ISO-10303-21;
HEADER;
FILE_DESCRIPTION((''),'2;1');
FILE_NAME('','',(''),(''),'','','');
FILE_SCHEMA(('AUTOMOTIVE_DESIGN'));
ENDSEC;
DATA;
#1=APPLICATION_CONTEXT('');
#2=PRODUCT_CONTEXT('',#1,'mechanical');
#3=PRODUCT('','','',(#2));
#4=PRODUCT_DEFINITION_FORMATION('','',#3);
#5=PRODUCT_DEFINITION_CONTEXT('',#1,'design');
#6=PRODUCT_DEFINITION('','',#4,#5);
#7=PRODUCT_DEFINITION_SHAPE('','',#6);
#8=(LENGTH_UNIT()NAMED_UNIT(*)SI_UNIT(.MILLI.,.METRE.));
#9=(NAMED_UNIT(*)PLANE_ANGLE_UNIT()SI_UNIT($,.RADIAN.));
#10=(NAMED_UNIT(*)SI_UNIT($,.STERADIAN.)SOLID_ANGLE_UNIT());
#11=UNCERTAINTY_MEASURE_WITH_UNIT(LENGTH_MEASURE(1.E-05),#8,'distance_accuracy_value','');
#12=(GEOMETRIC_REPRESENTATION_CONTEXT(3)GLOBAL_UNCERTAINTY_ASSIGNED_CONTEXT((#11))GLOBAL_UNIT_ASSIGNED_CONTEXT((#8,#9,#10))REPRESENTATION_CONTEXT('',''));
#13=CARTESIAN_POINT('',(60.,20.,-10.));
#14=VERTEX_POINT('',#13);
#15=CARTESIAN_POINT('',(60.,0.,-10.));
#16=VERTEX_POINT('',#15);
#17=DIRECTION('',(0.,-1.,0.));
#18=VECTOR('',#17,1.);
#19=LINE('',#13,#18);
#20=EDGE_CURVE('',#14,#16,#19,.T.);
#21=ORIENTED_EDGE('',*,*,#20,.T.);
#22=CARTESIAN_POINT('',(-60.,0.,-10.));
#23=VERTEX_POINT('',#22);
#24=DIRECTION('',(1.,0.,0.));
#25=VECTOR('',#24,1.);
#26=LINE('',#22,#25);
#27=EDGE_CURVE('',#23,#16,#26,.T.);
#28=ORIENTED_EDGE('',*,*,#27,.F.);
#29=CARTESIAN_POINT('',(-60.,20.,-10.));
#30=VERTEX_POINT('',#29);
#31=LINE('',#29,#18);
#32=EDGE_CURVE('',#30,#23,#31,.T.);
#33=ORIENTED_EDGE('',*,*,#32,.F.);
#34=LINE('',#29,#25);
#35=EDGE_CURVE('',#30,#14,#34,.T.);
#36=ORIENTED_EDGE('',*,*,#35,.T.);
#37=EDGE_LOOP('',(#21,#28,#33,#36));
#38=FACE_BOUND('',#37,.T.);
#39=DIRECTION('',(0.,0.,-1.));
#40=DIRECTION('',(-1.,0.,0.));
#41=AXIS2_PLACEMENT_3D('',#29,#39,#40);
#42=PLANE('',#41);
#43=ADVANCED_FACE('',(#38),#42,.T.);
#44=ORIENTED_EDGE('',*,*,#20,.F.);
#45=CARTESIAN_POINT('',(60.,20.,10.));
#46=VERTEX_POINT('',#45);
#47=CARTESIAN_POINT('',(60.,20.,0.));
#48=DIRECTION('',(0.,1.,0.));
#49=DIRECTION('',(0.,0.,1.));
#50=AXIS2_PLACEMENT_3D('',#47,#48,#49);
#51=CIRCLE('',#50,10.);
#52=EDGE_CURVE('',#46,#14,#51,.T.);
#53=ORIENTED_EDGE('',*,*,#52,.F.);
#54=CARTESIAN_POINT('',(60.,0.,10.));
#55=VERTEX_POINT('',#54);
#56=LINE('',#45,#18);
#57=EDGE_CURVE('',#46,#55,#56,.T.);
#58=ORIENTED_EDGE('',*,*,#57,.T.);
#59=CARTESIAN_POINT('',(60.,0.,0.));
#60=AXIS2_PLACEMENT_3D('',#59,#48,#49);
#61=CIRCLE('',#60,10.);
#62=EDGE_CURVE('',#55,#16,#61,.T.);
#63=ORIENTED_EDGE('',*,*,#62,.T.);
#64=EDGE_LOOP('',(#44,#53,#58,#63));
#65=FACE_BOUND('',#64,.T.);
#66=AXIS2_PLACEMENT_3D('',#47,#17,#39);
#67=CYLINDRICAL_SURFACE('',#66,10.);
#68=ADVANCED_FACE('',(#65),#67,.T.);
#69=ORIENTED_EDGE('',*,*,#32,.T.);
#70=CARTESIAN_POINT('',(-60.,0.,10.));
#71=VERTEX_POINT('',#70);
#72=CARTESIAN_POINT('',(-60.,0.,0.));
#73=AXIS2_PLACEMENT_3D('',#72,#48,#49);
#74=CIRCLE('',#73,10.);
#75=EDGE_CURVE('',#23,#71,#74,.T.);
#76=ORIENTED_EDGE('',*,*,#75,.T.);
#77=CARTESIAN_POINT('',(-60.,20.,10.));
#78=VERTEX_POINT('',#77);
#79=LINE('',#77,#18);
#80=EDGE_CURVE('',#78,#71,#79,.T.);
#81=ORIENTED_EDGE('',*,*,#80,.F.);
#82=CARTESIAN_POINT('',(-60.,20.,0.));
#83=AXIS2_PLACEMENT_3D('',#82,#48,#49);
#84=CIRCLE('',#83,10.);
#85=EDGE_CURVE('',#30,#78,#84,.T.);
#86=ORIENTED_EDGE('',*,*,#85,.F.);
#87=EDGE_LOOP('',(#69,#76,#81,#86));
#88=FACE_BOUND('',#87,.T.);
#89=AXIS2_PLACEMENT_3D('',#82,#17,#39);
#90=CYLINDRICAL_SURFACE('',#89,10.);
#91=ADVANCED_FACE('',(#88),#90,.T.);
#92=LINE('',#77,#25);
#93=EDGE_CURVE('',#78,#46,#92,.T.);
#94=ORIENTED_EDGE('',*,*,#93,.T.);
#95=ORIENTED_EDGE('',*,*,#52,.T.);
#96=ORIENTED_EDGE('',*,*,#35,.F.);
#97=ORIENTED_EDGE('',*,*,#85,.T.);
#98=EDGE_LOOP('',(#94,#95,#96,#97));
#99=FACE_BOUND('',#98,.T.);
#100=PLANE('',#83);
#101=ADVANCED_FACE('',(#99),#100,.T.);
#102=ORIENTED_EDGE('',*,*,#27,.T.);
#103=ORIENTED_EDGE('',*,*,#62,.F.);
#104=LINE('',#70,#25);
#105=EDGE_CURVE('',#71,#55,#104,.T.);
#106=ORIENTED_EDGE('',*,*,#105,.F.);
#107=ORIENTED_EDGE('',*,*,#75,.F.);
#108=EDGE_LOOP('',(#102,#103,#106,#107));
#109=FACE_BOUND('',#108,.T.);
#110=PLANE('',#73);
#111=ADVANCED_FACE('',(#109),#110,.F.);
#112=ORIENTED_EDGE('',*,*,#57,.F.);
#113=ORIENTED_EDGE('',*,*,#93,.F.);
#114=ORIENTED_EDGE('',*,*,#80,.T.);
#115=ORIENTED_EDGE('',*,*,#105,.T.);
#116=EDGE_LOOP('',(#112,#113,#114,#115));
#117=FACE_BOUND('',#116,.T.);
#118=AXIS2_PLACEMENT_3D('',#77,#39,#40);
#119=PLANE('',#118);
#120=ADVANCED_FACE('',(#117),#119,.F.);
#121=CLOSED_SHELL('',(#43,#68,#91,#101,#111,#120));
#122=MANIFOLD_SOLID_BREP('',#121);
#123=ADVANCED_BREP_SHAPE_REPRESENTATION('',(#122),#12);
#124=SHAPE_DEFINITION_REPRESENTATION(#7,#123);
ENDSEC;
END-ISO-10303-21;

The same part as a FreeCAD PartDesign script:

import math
import FreeCAD as App
import Part
import Sketcher

doc = App.newDocument("Part")
body = doc.addObject("PartDesign::Body", "Body")

sketch1 = body.newObject("Sketcher::SketchObject", "Sketch")
sketch1.AttachmentSupport = (doc.getObject("XZ_Plane"), [""])
sketch1.MapMode = "FlatFace"
sketch1.addGeometry(Part.LineSegment(App.Vector(60, -10, 0), App.Vector(-60, -10, 0)), False)
sketch1.addGeometry(Part.ArcOfCircle(Part.Circle(App.Vector(-60, 0, 0), App.Vector(0, 0, 1), 10), math.radians(90), math.radians(270)), False)
sketch1.addGeometry(Part.LineSegment(App.Vector(-60, 10, 0), App.Vector(60, 10, 0)), False)
sketch1.addGeometry(Part.ArcOfCircle(Part.Circle(App.Vector(60, 0, 0), App.Vector(0, 0, 1), 10), math.radians(-90), math.radians(90)), False)
sketch1.addConstraint(Sketcher.Constraint("Tangent", 0, 2, 1, 2))
sketch1.addConstraint(Sketcher.Constraint("Tangent", 1, 1, 2, 1))
sketch1.addConstraint(Sketcher.Constraint("Tangent", 2, 2, 3, 2))
sketch1.addConstraint(Sketcher.Constraint("Tangent", 3, 1, 0, 1))
sketch1.addConstraint(Sketcher.Constraint("Horizontal", 0))
sketch1.addConstraint(Sketcher.Constraint("Horizontal", 2))
sketch1.addConstraint(Sketcher.Constraint("Symmetric", 1, 3, 3, 3, -1, 1))
sketch1.addConstraint(Sketcher.Constraint("Radius", 1, 10.0))
sketch1.addConstraint(Sketcher.Constraint("DistanceX", 0, 2, 0, 1, 120.0))
pad1 = body.newObject("PartDesign::Pad", "Pad")
pad1.Profile = sketch1
pad1.Length = 20
pad1.Reversed = True

doc.recompute()
